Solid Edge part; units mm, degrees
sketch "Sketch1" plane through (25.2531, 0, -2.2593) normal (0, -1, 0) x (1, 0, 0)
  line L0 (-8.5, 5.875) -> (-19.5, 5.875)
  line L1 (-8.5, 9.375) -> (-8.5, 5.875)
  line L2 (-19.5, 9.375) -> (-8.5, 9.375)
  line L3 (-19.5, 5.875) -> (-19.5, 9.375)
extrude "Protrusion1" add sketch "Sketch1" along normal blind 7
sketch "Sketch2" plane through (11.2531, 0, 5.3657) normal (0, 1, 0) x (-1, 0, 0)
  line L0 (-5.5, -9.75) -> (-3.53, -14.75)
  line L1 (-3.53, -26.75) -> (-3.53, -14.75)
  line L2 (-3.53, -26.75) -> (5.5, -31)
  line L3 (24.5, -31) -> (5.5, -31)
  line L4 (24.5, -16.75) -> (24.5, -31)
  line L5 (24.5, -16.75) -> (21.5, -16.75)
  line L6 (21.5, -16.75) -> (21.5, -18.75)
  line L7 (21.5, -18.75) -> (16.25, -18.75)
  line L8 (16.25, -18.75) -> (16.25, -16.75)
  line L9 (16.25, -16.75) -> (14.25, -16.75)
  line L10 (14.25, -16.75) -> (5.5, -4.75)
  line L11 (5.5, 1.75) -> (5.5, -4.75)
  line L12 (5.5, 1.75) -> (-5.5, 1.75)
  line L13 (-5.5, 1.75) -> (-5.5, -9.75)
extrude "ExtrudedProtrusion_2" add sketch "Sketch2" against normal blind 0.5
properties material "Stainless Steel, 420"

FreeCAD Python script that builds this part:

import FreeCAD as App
import Part
import Sketcher
from FreeCAD import Vector
Q = App.Units.Quantity

doc = App.newDocument("Part")
body = doc.addObject("PartDesign::Body", "Body")

sketch1 = body.newObject("Sketcher::SketchObject", "Sketch")
sketch1.AttachmentSupport = (doc.getObject("XZ_Plane"), [""])
sketch1.MapMode = "FlatFace"
sketch1.addGeometry(Part.LineSegment(Vector(5.8, 3.6, 0), Vector(16.8, 3.6, 0)), False)
sketch1.addGeometry(Part.LineSegment(Vector(16.8, 3.6, 0), Vector(16.8, 7.1, 0)), False)
sketch1.addGeometry(Part.LineSegment(Vector(16.8, 7.1, 0), Vector(5.8, 7.1, 0)), False)
sketch1.addGeometry(Part.LineSegment(Vector(5.8, 7.1, 0), Vector(5.8, 3.6, 0)), False)
sketch1.addConstraint(Sketcher.Constraint("Coincident", 0, 2, 1, 1))
sketch1.addConstraint(Sketcher.Constraint("Coincident", 1, 2, 2, 1))
sketch1.addConstraint(Sketcher.Constraint("Coincident", 2, 2, 3, 1))
sketch1.addConstraint(Sketcher.Constraint("Coincident", 3, 2, 0, 1))
sketch1.addConstraint(Sketcher.Constraint("Horizontal", 0))
sketch1.addConstraint(Sketcher.Constraint("Vertical", 1))
sketch1.addConstraint(Sketcher.Constraint("Horizontal", 2))
sketch1.addConstraint(Sketcher.Constraint("Vertical", 3))
sketch1.addConstraint(Sketcher.Constraint("DistanceX", 0, 1, 0, 2, Q("11 mm")))
sketch1.addConstraint(Sketcher.Constraint("DistanceY", 1, 1, 1, 2, Q("3.5 mm")))
sketch1.addConstraint(Sketcher.Constraint("DistanceX", -1, 1, 0, 2, Q("16.753 mm")))
sketch1.addConstraint(Sketcher.Constraint("DistanceY", -1, 1, 0, 2, Q("3.6157 mm")))
pad1 = body.newObject("PartDesign::Pad", "Pad")
pad1.Profile = sketch1
pad1.Length = 7

sketch2 = body.newObject("Sketcher::SketchObject", "Sketch001")
sketch2.AttachmentSupport = (doc.getObject("XZ_Plane"), [""])
sketch2.MapMode = "FlatFace"
sketch2.addGeometry(Part.LineSegment(Vector(16.8, 7.1, 0), Vector(16.8, -4.4, 0)), False)
sketch2.addGeometry(Part.LineSegment(Vector(16.8, -4.4, 0), Vector(14.8, -9.4, 0)), False)
sketch2.addGeometry(Part.LineSegment(Vector(14.8, -9.4, 0), Vector(14.8, -21.4, 0)), False)
sketch2.addGeometry(Part.LineSegment(Vector(14.8, -21.4, 0), Vector(5.8, -25.6, 0)), False)
sketch2.addGeometry(Part.LineSegment(Vector(5.8, -25.6, 0), Vector(-13.2, -25.6, 0)), False)
sketch2.addGeometry(Part.LineSegment(Vector(-13.2, -25.6, 0), Vector(-13.2, -11.4, 0)), False)
sketch2.addGeometry(Part.LineSegment(Vector(-13.2, -11.4, 0), Vector(-10.2, -11.4, 0)), False)
sketch2.addGeometry(Part.LineSegment(Vector(-10.2, -11.4, 0), Vector(-10.2, -13.4, 0)), False)
sketch2.addGeometry(Part.LineSegment(Vector(-10.2, -13.4, 0), Vector(-5, -13.4, 0)), False)
sketch2.addGeometry(Part.LineSegment(Vector(-5, -13.4, 0), Vector(-5, -11.4, 0)), False)
sketch2.addGeometry(Part.LineSegment(Vector(-5, -11.4, 0), Vector(-3, -11.4, 0)), False)
sketch2.addGeometry(Part.LineSegment(Vector(-3, -11.4, 0), Vector(5.8, 0.6, 0)), False)
sketch2.addGeometry(Part.LineSegment(Vector(5.8, 0.6, 0), Vector(5.8, 7.1, 0)), False)
sketch2.addGeometry(Part.LineSegment(Vector(5.8, 7.1, 0), Vector(16.8, 7.1, 0)), False)
sketch2.addConstraint(Sketcher.Constraint("Coincident", 0, 2, 1, 1))
sketch2.addConstraint(Sketcher.Constraint("Coincident", 1, 2, 2, 1))
sketch2.addConstraint(Sketcher.Constraint("Coincident", 2, 2, 3, 1))
sketch2.addConstraint(Sketcher.Constraint("Coincident", 3, 2, 4, 1))
sketch2.addConstraint(Sketcher.Constraint("Coincident", 4, 2, 5, 1))
sketch2.addConstraint(Sketcher.Constraint("Coincident", 5, 2, 6, 1))
sketch2.addConstraint(Sketcher.Constraint("Coincident", 6, 2, 7, 1))
sketch2.addConstraint(Sketcher.Constraint("Coincident", 7, 2, 8, 1))
sketch2.addConstraint(Sketcher.Constraint("Coincident", 8, 2, 9, 1))
sketch2.addConstraint(Sketcher.Constraint("Coincident", 9, 2, 10, 1))
sketch2.addConstraint(Sketcher.Constraint("Coincident", 10, 2, 11, 1))
sketch2.addConstraint(Sketcher.Constraint("Coincident", 11, 2, 12, 1))
sketch2.addConstraint(Sketcher.Constraint("Coincident", 12, 2, 13, 1))
sketch2.addConstraint(Sketcher.Constraint("Coincident", 13, 2, 0, 1))
sketch2.addConstraint(Sketcher.Constraint("Vertical", 0))
sketch2.addConstraint(Sketcher.Constraint("Vertical", 2))
sketch2.addConstraint(Sketcher.Constraint("Horizontal", 4))
sketch2.addConstraint(Sketcher.Constraint("Vertical", 5))
sketch2.addConstraint(Sketcher.Constraint("Horizontal", 6))
sketch2.addConstraint(Sketcher.Constraint("Vertical", 7))
sketch2.addConstraint(Sketcher.Constraint("Horizontal", 8))
sketch2.addConstraint(Sketcher.Constraint("Vertical", 9))
sketch2.addConstraint(Sketcher.Constraint("Horizontal", 10))
sketch2.addConstraint(Sketcher.Constraint("Vertical", 12))
sketch2.addConstraint(Sketcher.Constraint("Horizontal", 13))
sketch2.addConstraint(Sketcher.Constraint("Horizontal", 6, 2, 9, 2))
sketch2.addConstraint(Sketcher.Constraint("Vertical", 3, 2, 11, 2))
sketch2.addConstraint(Sketcher.Constraint("Equal", 10, 7))
sketch2.addConstraint(Sketcher.Constraint("DistanceX", 4, 2, 4, 1, Q("19 mm")))
sketch2.addConstraint(Sketcher.Constraint("DistanceX", 6, 1, 6, 2, Q("3 mm")))
sketch2.addConstraint(Sketcher.Constraint("DistanceX", 10, 1, 10, 2, Q("2 mm")))
sketch2.addConstraint(Sketcher.Constraint("DistanceX", 13, 1, 13, 2, Q("11 mm")))
sketch2.addConstraint(Sketcher.Constraint("DistanceY", 2, 2, 2, 1, Q("12 mm")))
sketch2.addConstraint(Sketcher.Constraint("DistanceY", 0, 2, 0, 1, Q("11.5 mm")))
sketch2.addConstraint(Sketcher.Constraint("DistanceY", 12, 1, 12, 2, Q("6.5 mm")))
sketch2.addConstraint(Sketcher.Constraint("DistanceY", 1, 2, 0, 2, Q("5 mm")))
sketch2.addConstraint(Sketcher.Constraint("DistanceY", 5, 2, 1, 2, Q("2 mm")))
sketch2.addConstraint(Sketcher.Constraint("DistanceX", 8, 1, 8, 2, Q("5.25 mm")))
sketch2.addConstraint(Sketcher.Constraint("DistanceY", 5, 1, 5, 2, Q("14.25 mm")))
sketch2.addConstraint(Sketcher.Constraint("DistanceX", 1, 2, 0, 2, Q("1.97 mm")))
sketch2.addConstraint(Sketcher.Constraint("DistanceX", -1, 1, 0, 2, Q("16.753 mm")))
sketch2.addConstraint(Sketcher.Constraint("DistanceY", 0, 2, -1, 1, Q("4.3843 mm")))
pad2 = body.newObject("PartDesign::Pad", "Pad001")
pad2.Profile = sketch2
pad2.Length = 0.5

doc.recompute()
